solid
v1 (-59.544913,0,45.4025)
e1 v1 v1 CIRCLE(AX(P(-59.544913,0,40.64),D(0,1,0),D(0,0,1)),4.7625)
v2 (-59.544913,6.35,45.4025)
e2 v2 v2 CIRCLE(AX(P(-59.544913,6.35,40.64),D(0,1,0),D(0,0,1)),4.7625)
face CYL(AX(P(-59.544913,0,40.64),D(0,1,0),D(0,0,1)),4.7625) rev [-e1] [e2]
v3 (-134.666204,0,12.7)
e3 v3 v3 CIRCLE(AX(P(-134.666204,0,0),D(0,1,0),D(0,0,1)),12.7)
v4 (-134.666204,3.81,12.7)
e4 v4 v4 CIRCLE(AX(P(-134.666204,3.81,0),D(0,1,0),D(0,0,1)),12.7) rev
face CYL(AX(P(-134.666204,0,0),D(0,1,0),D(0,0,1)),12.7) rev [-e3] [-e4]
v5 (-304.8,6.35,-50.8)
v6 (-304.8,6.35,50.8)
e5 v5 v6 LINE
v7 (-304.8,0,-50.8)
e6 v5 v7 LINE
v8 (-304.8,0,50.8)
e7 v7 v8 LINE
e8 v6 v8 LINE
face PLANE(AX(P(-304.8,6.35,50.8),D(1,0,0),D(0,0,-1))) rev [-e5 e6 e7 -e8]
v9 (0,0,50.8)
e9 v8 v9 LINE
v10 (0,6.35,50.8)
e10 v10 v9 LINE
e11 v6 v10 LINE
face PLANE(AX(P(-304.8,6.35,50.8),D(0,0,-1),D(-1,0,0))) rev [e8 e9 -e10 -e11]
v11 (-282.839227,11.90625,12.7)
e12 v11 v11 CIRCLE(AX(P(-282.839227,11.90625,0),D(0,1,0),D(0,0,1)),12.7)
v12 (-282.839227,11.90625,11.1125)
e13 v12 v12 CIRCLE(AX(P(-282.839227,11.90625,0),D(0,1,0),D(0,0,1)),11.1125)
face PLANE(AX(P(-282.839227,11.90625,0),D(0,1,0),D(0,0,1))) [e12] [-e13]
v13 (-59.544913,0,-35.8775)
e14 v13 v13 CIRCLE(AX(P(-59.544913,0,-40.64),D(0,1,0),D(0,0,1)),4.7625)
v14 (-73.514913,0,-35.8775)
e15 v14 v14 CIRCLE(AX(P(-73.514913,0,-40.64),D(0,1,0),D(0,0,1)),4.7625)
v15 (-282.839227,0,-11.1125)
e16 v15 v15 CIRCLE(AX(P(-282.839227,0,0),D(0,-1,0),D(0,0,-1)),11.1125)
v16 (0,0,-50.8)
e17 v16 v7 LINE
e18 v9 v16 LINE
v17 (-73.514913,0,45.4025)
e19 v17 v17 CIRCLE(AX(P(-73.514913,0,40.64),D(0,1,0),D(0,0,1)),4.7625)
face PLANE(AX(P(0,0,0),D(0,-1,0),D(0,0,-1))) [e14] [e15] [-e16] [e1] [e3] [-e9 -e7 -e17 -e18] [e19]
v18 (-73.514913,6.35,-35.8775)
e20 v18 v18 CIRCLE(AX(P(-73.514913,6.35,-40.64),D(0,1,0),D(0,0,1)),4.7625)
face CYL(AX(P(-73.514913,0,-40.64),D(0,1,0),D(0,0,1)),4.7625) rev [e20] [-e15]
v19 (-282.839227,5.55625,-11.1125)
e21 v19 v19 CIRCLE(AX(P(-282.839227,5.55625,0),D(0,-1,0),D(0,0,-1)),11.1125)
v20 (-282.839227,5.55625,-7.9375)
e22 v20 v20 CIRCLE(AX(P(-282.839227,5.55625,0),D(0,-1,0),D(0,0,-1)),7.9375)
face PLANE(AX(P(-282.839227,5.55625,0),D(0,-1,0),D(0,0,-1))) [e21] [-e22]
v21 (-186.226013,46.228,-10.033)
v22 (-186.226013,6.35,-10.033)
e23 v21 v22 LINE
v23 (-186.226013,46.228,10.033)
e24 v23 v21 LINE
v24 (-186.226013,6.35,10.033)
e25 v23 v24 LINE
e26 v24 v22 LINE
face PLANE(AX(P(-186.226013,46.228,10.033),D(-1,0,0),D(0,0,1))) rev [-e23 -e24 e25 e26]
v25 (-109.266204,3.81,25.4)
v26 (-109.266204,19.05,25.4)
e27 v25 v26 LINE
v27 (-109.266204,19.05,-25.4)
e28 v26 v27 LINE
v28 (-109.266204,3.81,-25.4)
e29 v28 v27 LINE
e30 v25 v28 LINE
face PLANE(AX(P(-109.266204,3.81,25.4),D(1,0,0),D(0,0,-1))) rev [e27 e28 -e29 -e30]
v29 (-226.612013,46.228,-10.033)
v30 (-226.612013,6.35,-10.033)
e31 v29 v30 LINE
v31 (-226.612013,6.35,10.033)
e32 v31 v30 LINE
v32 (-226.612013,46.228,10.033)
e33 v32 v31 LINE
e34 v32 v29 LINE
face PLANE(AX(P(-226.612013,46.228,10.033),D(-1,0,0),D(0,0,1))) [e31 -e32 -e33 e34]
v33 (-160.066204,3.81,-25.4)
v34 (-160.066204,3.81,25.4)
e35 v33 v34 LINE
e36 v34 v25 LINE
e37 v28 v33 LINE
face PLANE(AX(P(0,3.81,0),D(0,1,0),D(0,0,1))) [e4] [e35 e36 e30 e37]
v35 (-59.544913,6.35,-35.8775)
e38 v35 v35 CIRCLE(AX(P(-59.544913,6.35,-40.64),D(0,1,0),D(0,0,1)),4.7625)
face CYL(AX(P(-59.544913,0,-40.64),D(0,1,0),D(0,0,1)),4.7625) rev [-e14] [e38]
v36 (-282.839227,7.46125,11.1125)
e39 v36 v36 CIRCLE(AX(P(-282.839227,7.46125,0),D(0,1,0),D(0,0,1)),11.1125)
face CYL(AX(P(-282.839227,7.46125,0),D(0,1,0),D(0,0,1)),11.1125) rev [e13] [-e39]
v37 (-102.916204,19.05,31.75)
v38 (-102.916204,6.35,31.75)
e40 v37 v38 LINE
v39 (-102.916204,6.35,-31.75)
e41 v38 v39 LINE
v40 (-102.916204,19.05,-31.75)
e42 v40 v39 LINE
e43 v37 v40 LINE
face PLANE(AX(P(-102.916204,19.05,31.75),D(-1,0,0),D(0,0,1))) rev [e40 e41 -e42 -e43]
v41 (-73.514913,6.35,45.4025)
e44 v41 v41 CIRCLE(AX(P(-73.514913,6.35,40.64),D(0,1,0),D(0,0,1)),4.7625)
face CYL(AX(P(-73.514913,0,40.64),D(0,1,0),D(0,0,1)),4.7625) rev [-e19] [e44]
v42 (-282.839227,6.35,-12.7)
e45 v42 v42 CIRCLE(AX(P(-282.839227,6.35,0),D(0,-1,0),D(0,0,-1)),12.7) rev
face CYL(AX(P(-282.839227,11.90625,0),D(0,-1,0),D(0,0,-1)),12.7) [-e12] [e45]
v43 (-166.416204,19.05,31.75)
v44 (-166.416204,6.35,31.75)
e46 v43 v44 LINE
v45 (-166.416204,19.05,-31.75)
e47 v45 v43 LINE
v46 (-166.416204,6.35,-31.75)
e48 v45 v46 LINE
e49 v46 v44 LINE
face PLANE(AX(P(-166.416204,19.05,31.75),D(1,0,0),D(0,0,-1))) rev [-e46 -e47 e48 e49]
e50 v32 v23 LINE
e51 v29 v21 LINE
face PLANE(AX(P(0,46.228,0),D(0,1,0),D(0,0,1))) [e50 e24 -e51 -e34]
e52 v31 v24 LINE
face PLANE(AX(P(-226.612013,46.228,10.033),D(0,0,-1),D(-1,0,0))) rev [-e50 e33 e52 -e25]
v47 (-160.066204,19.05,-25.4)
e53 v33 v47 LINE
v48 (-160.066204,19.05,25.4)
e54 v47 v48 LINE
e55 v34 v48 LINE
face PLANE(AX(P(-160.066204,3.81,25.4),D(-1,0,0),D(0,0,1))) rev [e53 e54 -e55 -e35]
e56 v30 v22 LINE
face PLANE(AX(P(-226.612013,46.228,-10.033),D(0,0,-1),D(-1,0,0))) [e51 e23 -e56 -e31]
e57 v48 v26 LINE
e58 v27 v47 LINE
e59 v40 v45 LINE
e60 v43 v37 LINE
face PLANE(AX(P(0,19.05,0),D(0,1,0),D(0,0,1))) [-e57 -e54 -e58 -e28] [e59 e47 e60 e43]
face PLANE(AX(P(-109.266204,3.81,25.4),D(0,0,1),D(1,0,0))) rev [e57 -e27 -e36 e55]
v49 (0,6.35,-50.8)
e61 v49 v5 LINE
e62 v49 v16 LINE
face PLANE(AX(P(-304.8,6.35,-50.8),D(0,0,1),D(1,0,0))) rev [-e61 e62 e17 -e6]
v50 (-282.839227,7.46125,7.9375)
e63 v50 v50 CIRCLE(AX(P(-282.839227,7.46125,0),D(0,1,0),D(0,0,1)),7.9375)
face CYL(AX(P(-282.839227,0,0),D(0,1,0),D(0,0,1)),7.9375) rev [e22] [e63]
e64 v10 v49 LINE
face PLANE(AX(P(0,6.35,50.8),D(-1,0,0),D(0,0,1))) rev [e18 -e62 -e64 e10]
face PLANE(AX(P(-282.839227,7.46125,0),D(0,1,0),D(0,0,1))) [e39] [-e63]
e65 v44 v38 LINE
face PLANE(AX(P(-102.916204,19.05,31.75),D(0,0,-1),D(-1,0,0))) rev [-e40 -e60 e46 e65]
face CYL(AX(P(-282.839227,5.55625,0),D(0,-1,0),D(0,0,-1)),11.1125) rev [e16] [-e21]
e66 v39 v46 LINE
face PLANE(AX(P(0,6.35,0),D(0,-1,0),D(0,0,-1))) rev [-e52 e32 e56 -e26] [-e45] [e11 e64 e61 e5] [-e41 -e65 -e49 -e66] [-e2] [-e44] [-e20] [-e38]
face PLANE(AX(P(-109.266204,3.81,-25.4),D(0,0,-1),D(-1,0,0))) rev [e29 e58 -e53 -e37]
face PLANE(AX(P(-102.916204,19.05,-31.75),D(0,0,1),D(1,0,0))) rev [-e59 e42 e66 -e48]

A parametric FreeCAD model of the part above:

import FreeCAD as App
import Part
import Sketcher

V = App.Vector
Q = App.Units.Quantity

doc = App.newDocument("Part")
body = doc.addObject("PartDesign::Body", "Body")

# Sketch on XZ plane
sketch1 = body.newObject("Sketcher::SketchObject", "Sketch")
sketch1.AttachmentSupport = (doc.getObject("XZ_Plane"), [""])
sketch1.MapMode = "FlatFace"
sketch1.addGeometry([
    Part.LineSegment(V(-304.8, -50.8, 0), V(-304.8, 50.8, 0)),
    Part.LineSegment(V(-304.8, 50.8, 0), V(0, 50.8, 0)),
    Part.LineSegment(V(0, 50.8, 0), V(0, -50.8, 0)),
    Part.LineSegment(V(0, -50.8, 0), V(-304.8, -50.8, 0)),
], False)
sketch1.addConstraint([
    Sketcher.Constraint("Coincident", 0, 2, 1, 1),
    Sketcher.Constraint("Coincident", 1, 2, 2, 1),
    Sketcher.Constraint("Coincident", 2, 2, 3, 1),
    Sketcher.Constraint("Coincident", 3, 2, 0, 1),
    Sketcher.Constraint("Vertical", 0),
    Sketcher.Constraint("Horizontal", 1),
    Sketcher.Constraint("Vertical", 2),
    Sketcher.Constraint("Horizontal", 3),
    Sketcher.Constraint("Symmetric", 1, 2, 2, 2, -1, 1),
    Sketcher.Constraint("DistanceX", 1, 1, 1, 2, Q("12 in")),
    Sketcher.Constraint("DistanceY", 0, 1, 0, 2, Q("4 in")),
])
pad1 = body.newObject("PartDesign::Pad", "Pad")
pad1.Profile = sketch1
pad1.Length = Q("0.25 in")
pad1.Reversed = True

# Sketch on XZ plane
sketch2 = body.newObject("Sketcher::SketchObject", "Sketch001")
sketch2.AttachmentSupport = (doc.getObject("XZ_Plane"), [""])
sketch2.MapMode = "FlatFace"
sketch2.AttachmentOffset = App.Placement(V(0, 0, -0.25 * 25.4), App.Rotation())
sketch2.addGeometry(Part.Circle(V(-282.839227, 0, 0), V(0, 0, 1), 12.7), False)
sketch2.addConstraint([
    Sketcher.Constraint("PointOnObject", 0, 3, -1),
    Sketcher.Constraint("Diameter", 0, Q("1 in")),
    Sketcher.Constraint("DistanceX", 0, 3, -1, 1, 282.839227),
])
pad2 = body.newObject("PartDesign::Pad", "Pad001")
pad2.Profile = sketch2
pad2.Length = Q("0.21875 in")
pad2.Reversed = True

# Sketch on XZ plane
sketch3 = body.newObject("Sketcher::SketchObject", "Sketch002")
sketch3.AttachmentSupport = (doc.getObject("XZ_Plane"), [""])
sketch3.MapMode = "FlatFace"
sketch3.AttachmentOffset = App.Placement(V(0, 0, -0.46875 * 25.4), App.Rotation())
sketch3.addGeometry(Part.Circle(V(-282.839227, 0, 0), V(0, 0, 1), 11.1125), False)
sketch3.addConstraint([
    Sketcher.Constraint("PointOnObject", 0, 3, -1),
    Sketcher.Constraint("Diameter", 0, Q("0.875 in")),
    Sketcher.Constraint("DistanceX", 0, 3, -1, 1, 282.839227),
])
pocket1 = body.newObject("PartDesign::Pocket", "Pocket")
pocket1.Profile = sketch3
pocket1.Length = Q("0.175 in")
pocket1.Reversed = True

# Sketch on XZ plane
sketch4 = body.newObject("Sketcher::SketchObject", "Sketch003")
sketch4.AttachmentSupport = (doc.getObject("XZ_Plane"), [""])
sketch4.MapMode = "FlatFace"
sketch4.AttachmentOffset = App.Placement(V(0, 0, -0.21875 * 25.4), App.Rotation())
sketch4.addGeometry(Part.Circle(V(-282.839227, 0, 0), V(0, 0, 1), 11.1125), False)
sketch4.addConstraint([
    Sketcher.Constraint("PointOnObject", 0, 3, -1),
    Sketcher.Constraint("Diameter", 0, Q("0.875 in")),
    Sketcher.Constraint("DistanceX", 0, 3, -1, 1, 282.839227),
])
pocket2 = body.newObject("PartDesign::Pocket", "Pocket001")
pocket2.Profile = sketch4
pocket2.Length = Q("0.21875 in")
pocket2.Reversed = True

# Sketch on XZ plane
sketch5 = body.newObject("Sketcher::SketchObject", "Sketch004")
sketch5.AttachmentSupport = (doc.getObject("XZ_Plane"), [""])
sketch5.MapMode = "FlatFace"
sketch5.AttachmentOffset = App.Placement(V(0, 0, -7.46125), App.Rotation())
sketch5.addGeometry(Part.Circle(V(-282.839227, 0, 0), V(0, 0, 1), 7.9375), False)
sketch5.addConstraint([
    Sketcher.Constraint("PointOnObject", 0, 3, -1),
    Sketcher.Constraint("Diameter", 0, Q("0.625 in")),
    Sketcher.Constraint("DistanceX", 0, 3, -1, 1, 282.839227),
])
pocket3 = body.newObject("PartDesign::Pocket", "Pocket002")
pocket3.Profile = sketch5
pocket3.Type = "ThroughAll"
pocket3.Reversed = True

# Sketch on XZ plane
sketch6 = body.newObject("Sketcher::SketchObject", "Sketch005")
sketch6.AttachmentSupport = (doc.getObject("XZ_Plane"), [""])
sketch6.MapMode = "FlatFace"
sketch6.AttachmentOffset = App.Placement(V(0, 0, -0.25 * 25.4), App.Rotation())
sketch6.addGeometry(Part.Circle(V(-134.666204, 0, 0), V(0, 0, 1), 12.7), False)
sketch6.addConstraint([
    Sketcher.Constraint("PointOnObject", 0, 3, -1),
    Sketcher.Constraint("Diameter", 0, Q("1 in")),
    Sketcher.Constraint("DistanceX", 0, 3, -1, 1, 134.666204),
])
pocket4 = body.newObject("PartDesign::Pocket", "Pocket003")
pocket4.Profile = sketch6
pocket4.Type = "ThroughAll"
pocket4.Reversed = True

# Sketch on XZ plane
sketch7 = body.newObject("Sketcher::SketchObject", "Sketch006")
sketch7.AttachmentSupport = (doc.getObject("XZ_Plane"), [""])
sketch7.MapMode = "FlatFace"
sketch7.AttachmentOffset = App.Placement(V(0, 0, -0.25 * 25.4), App.Rotation())
sketch7.addGeometry([
    Part.LineSegment(V(-166.416204, -31.75, 0), V(-166.416204, 31.75, 0)),
    Part.LineSegment(V(-166.416204, 31.75, 0), V(-102.916204, 31.75, 0)),
    Part.LineSegment(V(-102.916204, 31.75, 0), V(-102.916204, -31.75, 0)),
    Part.LineSegment(V(-102.916204, -31.75, 0), V(-166.416204, -31.75, 0)),
], False)
sketch7.addConstraint([
    Sketcher.Constraint("Coincident", 0, 2, 1, 1),
    Sketcher.Constraint("Coincident", 1, 2, 2, 1),
    Sketcher.Constraint("Coincident", 2, 2, 3, 1),
    Sketcher.Constraint("Coincident", 3, 2, 0, 1),
    Sketcher.Constraint("Vertical", 0),
    Sketcher.Constraint("Horizontal", 1),
    Sketcher.Constraint("Vertical", 2),
    Sketcher.Constraint("Horizontal", 3),
    Sketcher.Constraint("Equal", 3, 0),
    Sketcher.Constraint("DistanceX", 1, 1, 1, 2, Q("2.5 in")),
    Sketcher.Constraint("DistanceY", -1, 1, 0, 2, Q("1.25 in")),
    Sketcher.Constraint("DistanceX", 0, 2, -1, 1, 166.416204),
])
pad3 = body.newObject("PartDesign::Pad", "Pad002")
pad3.Profile = sketch7
pad3.Length = Q("0.5 in")
pad3.Reversed = True

# Sketch on XZ plane
sketch8 = body.newObject("Sketcher::SketchObject", "Sketch007")
sketch8.AttachmentSupport = (doc.getObject("XZ_Plane"), [""])
sketch8.MapMode = "FlatFace"
sketch8.AttachmentOffset = App.Placement(V(0, 0, -0.75 * 25.4), App.Rotation())
sketch8.addGeometry([
    Part.LineSegment(V(-160.066204, -25.4, 0), V(-160.066204, 25.4, 0)),
    Part.LineSegment(V(-160.066204, 25.4, 0), V(-109.266204, 25.4, 0)),
    Part.LineSegment(V(-109.266204, 25.4, 0), V(-109.266204, -25.4, 0)),
    Part.LineSegment(V(-109.266204, -25.4, 0), V(-160.066204, -25.4, 0)),
], False)
sketch8.addConstraint([
    Sketcher.Constraint("Coincident", 0, 2, 1, 1),
    Sketcher.Constraint("Coincident", 1, 2, 2, 1),
    Sketcher.Constraint("Coincident", 2, 2, 3, 1),
    Sketcher.Constraint("Coincident", 3, 2, 0, 1),
    Sketcher.Constraint("Vertical", 0),
    Sketcher.Constraint("Horizontal", 1),
    Sketcher.Constraint("Vertical", 2),
    Sketcher.Constraint("Horizontal", 3),
    Sketcher.Constraint("Equal", 3, 0),
    Sketcher.Constraint("DistanceX", 1, 1, 1, 2, Q("2 in")),
    Sketcher.Constraint("DistanceY", -1, 1, 0, 2, Q("1 in")),
    Sketcher.Constraint("DistanceX", 0, 2, -1, 1, 160.066204),
])
pocket5 = body.newObject("PartDesign::Pocket", "Pocket004")
pocket5.Profile = sketch8
pocket5.Length = Q("0.6 in")
pocket5.Reversed = True

# Sketch on XZ plane
sketch9 = body.newObject("Sketcher::SketchObject", "Sketch008")
sketch9.AttachmentSupport = (doc.getObject("XZ_Plane"), [""])
sketch9.MapMode = "FlatFace"
sketch9.AttachmentOffset = App.Placement(V(0, 0, -0.25 * 25.4), App.Rotation())
sketch9.addGeometry([
    Part.LineSegment(V(-226.612013, -10.033, 0), V(-226.612013, 10.033, 0)),
    Part.LineSegment(V(-226.612013, 10.033, 0), V(-186.226013, 10.033, 0)),
    Part.LineSegment(V(-186.226013, 10.033, 0), V(-186.226013, -10.033, 0)),
    Part.LineSegment(V(-186.226013, -10.033, 0), V(-226.612013, -10.033, 0)),
], False)
sketch9.addConstraint([
    Sketcher.Constraint("Coincident", 0, 2, 1, 1),
    Sketcher.Constraint("Coincident", 1, 2, 2, 1),
    Sketcher.Constraint("Coincident", 2, 2, 3, 1),
    Sketcher.Constraint("Coincident", 3, 2, 0, 1),
    Sketcher.Constraint("Vertical", 0),
    Sketcher.Constraint("Horizontal", 1),
    Sketcher.Constraint("Vertical", 2),
    Sketcher.Constraint("Horizontal", 3),
    Sketcher.Constraint("DistanceX", 1, 1, 1, 2, Q("1.59 in")),
    Sketcher.Constraint("DistanceY", 0, 1, 0, 2, Q("0.79 in")),
    Sketcher.Constraint("DistanceY", -1, 1, 0, 2, Q("0.395 in")),
    Sketcher.Constraint("DistanceX", 0, 2, -1, 1, 226.612013),
])
pad4 = body.newObject("PartDesign::Pad", "Pad003")
pad4.Profile = sketch9
pad4.Length = Q("1.57 in")
pad4.Reversed = True

# Sketch on XZ plane
sketch10 = body.newObject("Sketcher::SketchObject", "Sketch009")
sketch10.AttachmentSupport = (doc.getObject("XZ_Plane"), [""])
sketch10.MapMode = "FlatFace"
sketch10.AttachmentOffset = App.Placement(V(0, 0, -0.25 * 25.4), App.Rotation())
sketch10.addGeometry([
    Part.Circle(V(-59.544913, 40.64, 0), V(0, 0, 1), 4.7625),
    Part.Circle(V(-73.514913, 40.64, 0), V(0, 0, 1), 4.7625),
    Part.Circle(V(-59.544913, -40.64, 0), V(0, 0, 1), 4.7625),
    Part.Circle(V(-73.514913, -40.64, 0), V(0, 0, 1), 4.7625),
], False)
sketch10.addConstraint([
    Sketcher.Constraint("Equal", 0, 1),
    Sketcher.Constraint("Equal", 1, 2),
    Sketcher.Constraint("Equal", 2, 3),
    Sketcher.Constraint("Symmetric", 0, 3, 2, 3, -1),
    Sketcher.Constraint("Symmetric", 1, 3, 3, 3, -1),
    Sketcher.Constraint("Horizontal", 0, 3, 1, 3),
    Sketcher.Constraint("Diameter", 0, Q("0.375 in")),
    Sketcher.Constraint("DistanceY", -1, 1, 0, 3, Q("1.6 in")),
    Sketcher.Constraint("DistanceX", 1, 3, 0, 3, Q("0.55 in")),
    Sketcher.Constraint("DistanceX", 0, 3, -1, 1, 59.544913),
])
pocket6 = body.newObject("PartDesign::Pocket", "Pocket005")
pocket6.Profile = sketch10
pocket6.Length = Q("0.25 in")
pocket6.Reversed = True

doc.recompute()
